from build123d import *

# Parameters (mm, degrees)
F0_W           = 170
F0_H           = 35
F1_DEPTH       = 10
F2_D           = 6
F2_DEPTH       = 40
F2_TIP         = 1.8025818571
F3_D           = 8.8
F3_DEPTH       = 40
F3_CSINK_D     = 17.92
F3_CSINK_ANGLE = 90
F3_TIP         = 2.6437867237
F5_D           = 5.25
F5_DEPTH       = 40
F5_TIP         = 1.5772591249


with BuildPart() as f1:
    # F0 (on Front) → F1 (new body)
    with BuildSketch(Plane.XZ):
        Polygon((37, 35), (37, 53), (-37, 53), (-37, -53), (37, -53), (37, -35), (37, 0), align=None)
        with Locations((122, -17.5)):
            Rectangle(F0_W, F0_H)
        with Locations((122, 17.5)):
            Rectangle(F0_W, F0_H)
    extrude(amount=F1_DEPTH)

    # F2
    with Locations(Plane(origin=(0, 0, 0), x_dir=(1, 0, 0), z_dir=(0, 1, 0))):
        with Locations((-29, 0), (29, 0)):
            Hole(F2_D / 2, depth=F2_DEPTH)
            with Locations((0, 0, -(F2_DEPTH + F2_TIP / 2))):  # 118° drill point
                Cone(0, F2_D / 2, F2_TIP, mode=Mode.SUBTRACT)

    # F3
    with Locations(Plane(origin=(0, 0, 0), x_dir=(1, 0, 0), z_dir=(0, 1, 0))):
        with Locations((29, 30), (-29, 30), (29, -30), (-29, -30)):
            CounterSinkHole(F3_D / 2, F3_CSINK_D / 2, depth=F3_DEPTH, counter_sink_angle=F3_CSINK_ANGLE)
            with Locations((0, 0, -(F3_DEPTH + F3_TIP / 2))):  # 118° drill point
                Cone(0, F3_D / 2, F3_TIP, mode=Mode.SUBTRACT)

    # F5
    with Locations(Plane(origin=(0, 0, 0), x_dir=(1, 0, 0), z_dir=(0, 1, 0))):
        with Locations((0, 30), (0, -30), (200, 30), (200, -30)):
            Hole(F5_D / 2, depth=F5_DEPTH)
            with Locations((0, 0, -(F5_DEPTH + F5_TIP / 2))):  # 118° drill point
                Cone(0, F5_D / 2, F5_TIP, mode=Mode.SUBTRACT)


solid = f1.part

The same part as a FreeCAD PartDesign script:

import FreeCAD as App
import Part
import Sketcher

V = App.Vector
Q = App.Units.Quantity

doc = App.newDocument("Part")
body = doc.addObject("PartDesign::Body", "Body")

sketch1 = doc.addObject("Sketcher::SketchObject", "Sketch")
body.addObject(sketch1)
sketch1.AttachmentSupport = (doc.XZ_Plane, [""])
sketch1.MapMode = "FlatFace"
sketch1.addGeometry([
    Part.LineSegment(V(37, 53, 0), V(-37, 53, 0)),
    Part.LineSegment(V(-37, 53, 0), V(-37, -53, 0)),
    Part.LineSegment(V(-37, -53, 0), V(37, -53, 0)),
    Part.LineSegment(V(37, -53, 0), V(37, -35, 0)),
    Part.LineSegment(V(37, -35, 0), V(207, -35, 0)),
    Part.LineSegment(V(207, -35, 0), V(207, 35, 0)),
    Part.LineSegment(V(207, 35, 0), V(37, 35, 0)),
    Part.LineSegment(V(37, 35, 0), V(37, 53, 0)),
], False)
sketch1.addConstraint([
    Sketcher.Constraint("Coincident", 0, 2, 1, 1),
    Sketcher.Constraint("Coincident", 1, 2, 2, 1),
    Sketcher.Constraint("Coincident", 2, 2, 3, 1),
    Sketcher.Constraint("Coincident", 3, 2, 4, 1),
    Sketcher.Constraint("Coincident", 4, 2, 5, 1),
    Sketcher.Constraint("Coincident", 5, 2, 6, 1),
    Sketcher.Constraint("Coincident", 6, 2, 7, 1),
    Sketcher.Constraint("Coincident", 7, 2, 0, 1),
    Sketcher.Constraint("Horizontal", 0),
    Sketcher.Constraint("Vertical", 1),
    Sketcher.Constraint("Horizontal", 2),
    Sketcher.Constraint("Vertical", 3),
    Sketcher.Constraint("Horizontal", 4),
    Sketcher.Constraint("Vertical", 5),
    Sketcher.Constraint("Horizontal", 6),
    Sketcher.Constraint("Vertical", 7),
    Sketcher.Constraint("Symmetric", 0, 2, 2, 2, -1, 1),
    Sketcher.Constraint("Symmetric", 3, 2, 6, 2, -1),
    Sketcher.Constraint("DistanceX", 0, 2, 0, 1, Q("74 mm")),
    Sketcher.Constraint("DistanceX", 4, 1, 4, 2, Q("170 mm")),
    Sketcher.Constraint("DistanceY", 1, 2, 1, 1, Q("106 mm")),
    Sketcher.Constraint("DistanceY", 3, 1, 3, 2, Q("18 mm")),
])
pad1 = doc.addObject("PartDesign::Pad", "Pad")
body.addObject(pad1)
pad1.Profile = sketch1
pad1.Length = 10

sketch2 = doc.addObject("Sketcher::SketchObject", "Sketch001")
body.addObject(sketch2)
sketch2.AttachmentSupport = (doc.XZ_Plane, [""])
sketch2.MapMode = "FlatFace"
sketch2.addGeometry([
    Part.Circle(V(-29, 0, 0), V(0, 0, 1), 3),
    Part.Circle(V(29, 0, 0), V(0, 0, 1), 3),
], False)
sketch2.addConstraint([
    Sketcher.Constraint("Equal", 0, 1),
    Sketcher.Constraint("Symmetric", 0, 3, 1, 3, -1, 1),
    Sketcher.Constraint("PointOnObject", 0, 3, -1),
    Sketcher.Constraint("Diameter", 0, Q("6 mm")),
    Sketcher.Constraint("DistanceX", 0, 3, -1, 1, Q("29 mm")),
])
doc.recompute()
hole = doc.addObject("PartDesign::Hole", "Hole")
body.addObject(hole)
hole.Profile = sketch2
hole.ThreadType = "None"
hole.Diameter = 6
hole.DepthType = "Dimension"
hole.Depth = 40
hole.DrillPoint = "Angled"
hole.DrillPointAngle = 118
hole.Reversed = True

sketch3 = doc.addObject("Sketcher::SketchObject", "Sketch002")
body.addObject(sketch3)
sketch3.AttachmentSupport = (doc.XZ_Plane, [""])
sketch3.MapMode = "FlatFace"
sketch3.addGeometry([
    Part.Circle(V(29, -30, 0), V(0, 0, 1), 4.4),
    Part.Circle(V(-29, -30, 0), V(0, 0, 1), 4.4),
    Part.Circle(V(29, 30, 0), V(0, 0, 1), 4.4),
    Part.Circle(V(-29, 30, 0), V(0, 0, 1), 4.4),
], False)
sketch3.addConstraint([
    Sketcher.Constraint("Equal", 0, 1),
    Sketcher.Constraint("Equal", 1, 2),
    Sketcher.Constraint("Equal", 2, 3),
    Sketcher.Constraint("Symmetric", 1, 3, 2, 3, -1, 1),
    Sketcher.Constraint("Symmetric", 0, 3, 3, 3, -1, 1),
    Sketcher.Constraint("Symmetric", 0, 3, 1, 3, -2),
    Sketcher.Constraint("Diameter", 0, Q("8.8 mm")),
    Sketcher.Constraint("DistanceX", -1, 1, 0, 3, Q("29 mm")),
    Sketcher.Constraint("DistanceY", 0, 3, -1, 1, Q("30 mm")),
])
doc.recompute()
hole2 = doc.addObject("PartDesign::Hole", "Hole001")
body.addObject(hole2)
hole2.Profile = sketch3
hole2.ThreadType = "None"
hole2.Diameter = 8.8
hole2.DepthType = "Dimension"
hole2.Depth = 40
hole2.DrillPoint = "Angled"
hole2.DrillPointAngle = 118
hole2.HoleCutType = "Countersink"
hole2.HoleCutDiameter = 17.92
hole2.HoleCutCountersinkAngle = 90
hole2.Reversed = True

sketch4 = doc.addObject("Sketcher::SketchObject", "Sketch003")
body.addObject(sketch4)
sketch4.AttachmentSupport = (doc.XZ_Plane, [""])
sketch4.MapMode = "FlatFace"
sketch4.addGeometry([
    Part.Circle(V(0, -30, 0), V(0, 0, 1), 2.625),
    Part.Circle(V(0, 30, 0), V(0, 0, 1), 2.625),
    Part.Circle(V(200, -30, 0), V(0, 0, 1), 2.625),
    Part.Circle(V(200, 30, 0), V(0, 0, 1), 2.625),
], False)
sketch4.addConstraint([
    Sketcher.Constraint("Equal", 0, 1),
    Sketcher.Constraint("Equal", 1, 2),
    Sketcher.Constraint("Equal", 2, 3),
    Sketcher.Constraint("Symmetric", 0, 3, 1, 3, -1, 1),
    Sketcher.Constraint("Symmetric", 2, 3, 3, 3, -1),
    Sketcher.Constraint("PointOnObject", 0, 3, -2),
    Sketcher.Constraint("Horizontal", 0, 3, 2, 3),
    Sketcher.Constraint("Diameter", 0, Q("5.25 mm")),
    Sketcher.Constraint("DistanceY", 0, 3, -1, 1, Q("30 mm")),
    Sketcher.Constraint("DistanceX", -1, 1, 2, 3, Q("200 mm")),
])
doc.recompute()
hole3 = doc.addObject("PartDesign::Hole", "Hole002")
body.addObject(hole3)
hole3.Profile = sketch4
hole3.ThreadType = "None"
hole3.Diameter = 5.25
hole3.DepthType = "Dimension"
hole3.Depth = 40
hole3.DrillPoint = "Angled"
hole3.DrillPointAngle = 118
hole3.Reversed = True

doc.recompute()
